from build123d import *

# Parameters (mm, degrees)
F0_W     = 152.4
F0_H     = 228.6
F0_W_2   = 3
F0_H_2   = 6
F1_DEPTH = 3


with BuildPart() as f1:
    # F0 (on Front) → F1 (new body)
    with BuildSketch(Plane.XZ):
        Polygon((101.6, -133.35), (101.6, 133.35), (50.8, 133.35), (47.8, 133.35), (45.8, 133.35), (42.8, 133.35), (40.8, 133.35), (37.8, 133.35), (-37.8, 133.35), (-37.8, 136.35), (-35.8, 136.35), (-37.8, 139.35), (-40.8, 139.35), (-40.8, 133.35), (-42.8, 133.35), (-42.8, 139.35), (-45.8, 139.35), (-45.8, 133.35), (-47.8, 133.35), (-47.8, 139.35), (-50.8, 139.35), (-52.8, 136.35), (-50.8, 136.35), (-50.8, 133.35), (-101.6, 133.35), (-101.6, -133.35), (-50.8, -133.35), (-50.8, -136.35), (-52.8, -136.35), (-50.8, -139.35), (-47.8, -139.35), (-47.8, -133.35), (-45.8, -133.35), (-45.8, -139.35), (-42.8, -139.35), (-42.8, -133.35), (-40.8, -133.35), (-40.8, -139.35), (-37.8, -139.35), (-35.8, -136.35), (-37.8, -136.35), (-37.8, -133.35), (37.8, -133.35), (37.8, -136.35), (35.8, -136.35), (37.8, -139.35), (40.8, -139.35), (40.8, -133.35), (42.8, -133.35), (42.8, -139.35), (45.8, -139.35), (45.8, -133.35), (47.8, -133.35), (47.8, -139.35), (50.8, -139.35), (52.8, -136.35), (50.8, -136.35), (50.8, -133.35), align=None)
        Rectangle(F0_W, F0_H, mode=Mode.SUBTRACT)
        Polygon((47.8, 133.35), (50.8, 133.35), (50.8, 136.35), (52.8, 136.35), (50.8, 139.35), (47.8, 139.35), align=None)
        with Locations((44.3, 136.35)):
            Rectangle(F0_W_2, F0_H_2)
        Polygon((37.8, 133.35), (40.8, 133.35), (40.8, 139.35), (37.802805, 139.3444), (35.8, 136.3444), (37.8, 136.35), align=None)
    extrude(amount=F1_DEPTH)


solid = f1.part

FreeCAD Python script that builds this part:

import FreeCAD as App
import Part
import Sketcher

V = App.Vector
Q = App.Units.Quantity

doc = App.newDocument("Part")
body = doc.addObject("PartDesign::Body", "Body")

sketch1 = body.newObject("Sketcher::SketchObject", "Sketch")
sketch1.AttachmentSupport = (doc.getObject("XZ_Plane"), [""])
sketch1.MapMode = "FlatFace"
sketch1.addGeometry([
    Part.LineSegment(V(101.6, -133.35, 0), V(101.6, 133.35, 0)),
    Part.LineSegment(V(101.6, 133.35, 0), V(50.8, 133.35, 0)),
    Part.LineSegment(V(50.8, 133.35, 0), V(50.8, 136.35, 0)),
    Part.LineSegment(V(50.8, 136.35, 0), V(52.8, 136.35, 0)),
    Part.LineSegment(V(52.8, 136.35, 0), V(50.8, 139.35, 0)),
    Part.LineSegment(V(50.8, 139.35, 0), V(47.8, 139.35, 0)),
    Part.LineSegment(V(47.8, 139.35, 0), V(47.8, 133.35, 0)),
    Part.LineSegment(V(47.8, 133.35, 0), V(45.8, 133.35, 0)),
    Part.LineSegment(V(45.8, 133.35, 0), V(45.8, 139.35, 0)),
    Part.LineSegment(V(45.8, 139.35, 0), V(42.8, 139.35, 0)),
    Part.LineSegment(V(42.8, 139.35, 0), V(42.8, 133.35, 0)),
    Part.LineSegment(V(42.8, 133.35, 0), V(40.8, 133.35, 0)),
    Part.LineSegment(V(40.8, 133.35, 0), V(40.8, 139.35, 0)),
    Part.LineSegment(V(40.8, 139.35, 0), V(37.802805, 139.3444, 0)),
    Part.LineSegment(V(37.802805, 139.3444, 0), V(35.8, 136.3444, 0)),
    Part.LineSegment(V(35.8, 136.3444, 0), V(37.8, 136.35, 0)),
    Part.LineSegment(V(37.8, 136.35, 0), V(37.8, 133.35, 0)),
    Part.LineSegment(V(37.8, 133.35, 0), V(-37.8, 133.35, 0)),
    Part.LineSegment(V(-37.8, 133.35, 0), V(-37.8, 136.35, 0)),
    Part.LineSegment(V(-37.8, 136.35, 0), V(-35.8, 136.35, 0)),
    Part.LineSegment(V(-35.8, 136.35, 0), V(-37.8, 139.35, 0)),
    Part.LineSegment(V(-37.8, 139.35, 0), V(-40.8, 139.35, 0)),
    Part.LineSegment(V(-40.8, 139.35, 0), V(-40.8, 133.35, 0)),
    Part.LineSegment(V(-40.8, 133.35, 0), V(-42.8, 133.35, 0)),
    Part.LineSegment(V(-42.8, 133.35, 0), V(-42.8, 139.35, 0)),
    Part.LineSegment(V(-42.8, 139.35, 0), V(-45.8, 139.35, 0)),
    Part.LineSegment(V(-45.8, 139.35, 0), V(-45.8, 133.35, 0)),
    Part.LineSegment(V(-45.8, 133.35, 0), V(-47.8, 133.35, 0)),
    Part.LineSegment(V(-47.8, 133.35, 0), V(-47.8, 139.35, 0)),
    Part.LineSegment(V(-47.8, 139.35, 0), V(-50.8, 139.35, 0)),
    Part.LineSegment(V(-50.8, 139.35, 0), V(-52.8, 136.35, 0)),
    Part.LineSegment(V(-52.8, 136.35, 0), V(-50.8, 136.35, 0)),
    Part.LineSegment(V(-50.8, 136.35, 0), V(-50.8, 133.35, 0)),
    Part.LineSegment(V(-50.8, 133.35, 0), V(-101.6, 133.35, 0)),
    Part.LineSegment(V(-101.6, 133.35, 0), V(-101.6, -133.35, 0)),
    Part.LineSegment(V(-101.6, -133.35, 0), V(-50.8, -133.35, 0)),
    Part.LineSegment(V(-50.8, -133.35, 0), V(-50.8, -136.35, 0)),
    Part.LineSegment(V(-50.8, -136.35, 0), V(-52.8, -136.35, 0)),
    Part.LineSegment(V(-52.8, -136.35, 0), V(-50.8, -139.35, 0)),
    Part.LineSegment(V(-50.8, -139.35, 0), V(-47.8, -139.35, 0)),
    Part.LineSegment(V(-47.8, -139.35, 0), V(-47.8, -133.35, 0)),
    Part.LineSegment(V(-47.8, -133.35, 0), V(-45.8, -133.35, 0)),
    Part.LineSegment(V(-45.8, -133.35, 0), V(-45.8, -139.35, 0)),
    Part.LineSegment(V(-45.8, -139.35, 0), V(-42.8, -139.35, 0)),
    Part.LineSegment(V(-42.8, -139.35, 0), V(-42.8, -133.35, 0)),
    Part.LineSegment(V(-42.8, -133.35, 0), V(-40.8, -133.35, 0)),
    Part.LineSegment(V(-40.8, -133.35, 0), V(-40.8, -139.35, 0)),
    Part.LineSegment(V(-40.8, -139.35, 0), V(-37.8, -139.35, 0)),
    Part.LineSegment(V(-37.8, -139.35, 0), V(-35.8, -136.35, 0)),
    Part.LineSegment(V(-35.8, -136.35, 0), V(-37.8, -136.35, 0)),
    Part.LineSegment(V(-37.8, -136.35, 0), V(-37.8, -133.35, 0)),
    Part.LineSegment(V(-37.8, -133.35, 0), V(37.8, -133.35, 0)),
    Part.LineSegment(V(37.8, -133.35, 0), V(37.8, -136.35, 0)),
    Part.LineSegment(V(37.8, -136.35, 0), V(35.8, -136.35, 0)),
    Part.LineSegment(V(35.8, -136.35, 0), V(37.8, -139.35, 0)),
    Part.LineSegment(V(37.8, -139.35, 0), V(40.8, -139.35, 0)),
    Part.LineSegment(V(40.8, -139.35, 0), V(40.8, -133.35, 0)),
    Part.LineSegment(V(40.8, -133.35, 0), V(42.8, -133.35, 0)),
    Part.LineSegment(V(42.8, -133.35, 0), V(42.8, -139.35, 0)),
    Part.LineSegment(V(42.8, -139.35, 0), V(45.8, -139.35, 0)),
    Part.LineSegment(V(45.8, -139.35, 0), V(45.8, -133.35, 0)),
    Part.LineSegment(V(45.8, -133.35, 0), V(47.8, -133.35, 0)),
    Part.LineSegment(V(47.8, -133.35, 0), V(47.8, -139.35, 0)),
    Part.LineSegment(V(47.8, -139.35, 0), V(50.8, -139.35, 0)),
    Part.LineSegment(V(50.8, -139.35, 0), V(52.8, -136.35, 0)),
    Part.LineSegment(V(52.8, -136.35, 0), V(50.8, -136.35, 0)),
    Part.LineSegment(V(50.8, -136.35, 0), V(50.8, -133.35, 0)),
    Part.LineSegment(V(50.8, -133.35, 0), V(101.6, -133.35, 0)),
    Part.LineSegment(V(76.2, -114.3, 0), V(-76.2, -114.3, 0)),
    Part.LineSegment(V(-76.2, -114.3, 0), V(-76.2, 114.3, 0)),
    Part.LineSegment(V(-76.2, 114.3, 0), V(76.2, 114.3, 0)),
    Part.LineSegment(V(76.2, 114.3, 0), V(76.2, -114.3, 0)),
], False)
sketch1.addConstraint([
    Sketcher.Constraint("Coincident", 0, 2, 1, 1),
    Sketcher.Constraint("Coincident", 1, 2, 2, 1),
    Sketcher.Constraint("Coincident", 2, 2, 3, 1),
    Sketcher.Constraint("Coincident", 3, 2, 4, 1),
    Sketcher.Constraint("Coincident", 4, 2, 5, 1),
    Sketcher.Constraint("Coincident", 5, 2, 6, 1),
    Sketcher.Constraint("Coincident", 6, 2, 7, 1),
    Sketcher.Constraint("Coincident", 7, 2, 8, 1),
    Sketcher.Constraint("Coincident", 8, 2, 9, 1),
    Sketcher.Constraint("Coincident", 9, 2, 10, 1),
    Sketcher.Constraint("Coincident", 10, 2, 11, 1),
    Sketcher.Constraint("Coincident", 11, 2, 12, 1),
    Sketcher.Constraint("Coincident", 12, 2, 13, 1),
    Sketcher.Constraint("Coincident", 13, 2, 14, 1),
    Sketcher.Constraint("Coincident", 14, 2, 15, 1),
    Sketcher.Constraint("Coincident", 15, 2, 16, 1),
    Sketcher.Constraint("Coincident", 16, 2, 17, 1),
    Sketcher.Constraint("Coincident", 17, 2, 18, 1),
    Sketcher.Constraint("Coincident", 18, 2, 19, 1),
    Sketcher.Constraint("Coincident", 19, 2, 20, 1),
    Sketcher.Constraint("Coincident", 20, 2, 21, 1),
    Sketcher.Constraint("Coincident", 21, 2, 22, 1),
    Sketcher.Constraint("Coincident", 22, 2, 23, 1),
    Sketcher.Constraint("Coincident", 23, 2, 24, 1),
    Sketcher.Constraint("Coincident", 24, 2, 25, 1),
    Sketcher.Constraint("Coincident", 25, 2, 26, 1),
    Sketcher.Constraint("Coincident", 26, 2, 27, 1),
    Sketcher.Constraint("Coincident", 27, 2, 28, 1),
    Sketcher.Constraint("Coincident", 28, 2, 29, 1),
    Sketcher.Constraint("Coincident", 29, 2, 30, 1),
    Sketcher.Constraint("Coincident", 30, 2, 31, 1),
    Sketcher.Constraint("Coincident", 31, 2, 32, 1),
    Sketcher.Constraint("Coincident", 32, 2, 33, 1),
    Sketcher.Constraint("Coincident", 33, 2, 34, 1),
    Sketcher.Constraint("Coincident", 34, 2, 35, 1),
    Sketcher.Constraint("Coincident", 35, 2, 36, 1),
    Sketcher.Constraint("Coincident", 36, 2, 37, 1),
    Sketcher.Constraint("Coincident", 37, 2, 38, 1),
    Sketcher.Constraint("Coincident", 38, 2, 39, 1),
    Sketcher.Constraint("Coincident", 39, 2, 40, 1),
    Sketcher.Constraint("Coincident", 40, 2, 41, 1),
    Sketcher.Constraint("Coincident", 41, 2, 42, 1),
    Sketcher.Constraint("Coincident", 42, 2, 43, 1),
    Sketcher.Constraint("Coincident", 43, 2, 44, 1),
    Sketcher.Constraint("Coincident", 44, 2, 45, 1),
    Sketcher.Constraint("Coincident", 45, 2, 46, 1),
    Sketcher.Constraint("Coincident", 46, 2, 47, 1),
    Sketcher.Constraint("Coincident", 47, 2, 48, 1),
    Sketcher.Constraint("Coincident", 48, 2, 49, 1),
    Sketcher.Constraint("Coincident", 49, 2, 50, 1),
    Sketcher.Constraint("Coincident", 50, 2, 51, 1),
    Sketcher.Constraint("Coincident", 51, 2, 52, 1),
    Sketcher.Constraint("Coincident", 52, 2, 53, 1),
    Sketcher.Constraint("Coincident", 53, 2, 54, 1),
    Sketcher.Constraint("Coincident", 54, 2, 55, 1),
    Sketcher.Constraint("Coincident", 55, 2, 56, 1),
    Sketcher.Constraint("Coincident", 56, 2, 57, 1),
    Sketcher.Constraint("Coincident", 57, 2, 58, 1),
    Sketcher.Constraint("Coincident", 58, 2, 59, 1),
    Sketcher.Constraint("Coincident", 59, 2, 60, 1),
    Sketcher.Constraint("Coincident", 60, 2, 61, 1),
    Sketcher.Constraint("Coincident", 61, 2, 62, 1),
    Sketcher.Constraint("Coincident", 62, 2, 63, 1),
    Sketcher.Constraint("Coincident", 63, 2, 64, 1),
    Sketcher.Constraint("Coincident", 64, 2, 65, 1),
    Sketcher.Constraint("Coincident", 65, 2, 66, 1),
    Sketcher.Constraint("Coincident", 66, 2, 67, 1),
    Sketcher.Constraint("Coincident", 67, 2, 0, 1),
    Sketcher.Constraint("Coincident", 68, 2, 69, 1),
    Sketcher.Constraint("Coincident", 69, 2, 70, 1),
    Sketcher.Constraint("Coincident", 70, 2, 71, 1),
    Sketcher.Constraint("Coincident", 71, 2, 68, 1),
    Sketcher.Constraint("Vertical", 0),
    Sketcher.Constraint("Horizontal", 1),
    Sketcher.Constraint("Vertical", 2),
    Sketcher.Constraint("Horizontal", 3),
    Sketcher.Constraint("Horizontal", 5),
    Sketcher.Constraint("Vertical", 6),
    Sketcher.Constraint("Horizontal", 7),
    Sketcher.Constraint("Vertical", 8),
    Sketcher.Constraint("Horizontal", 9),
    Sketcher.Constraint("Vertical", 10),
    Sketcher.Constraint("Horizontal", 11),
    Sketcher.Constraint("Vertical", 12),
    Sketcher.Constraint("Vertical", 16),
    Sketcher.Constraint("Horizontal", 17),
    Sketcher.Constraint("Vertical", 18),
    Sketcher.Constraint("Horizontal", 19),
    Sketcher.Constraint("Horizontal", 21),
    Sketcher.Constraint("Vertical", 22),
    Sketcher.Constraint("Horizontal", 23),
    Sketcher.Constraint("Vertical", 24),
    Sketcher.Constraint("Horizontal", 25),
    Sketcher.Constraint("Vertical", 26),
    Sketcher.Constraint("Horizontal", 27),
    Sketcher.Constraint("Vertical", 28),
    Sketcher.Constraint("Horizontal", 29),
    Sketcher.Constraint("Horizontal", 31),
    Sketcher.Constraint("Vertical", 32),
    Sketcher.Constraint("Horizontal", 33),
    Sketcher.Constraint("Vertical", 34),
    Sketcher.Constraint("Horizontal", 35),
    Sketcher.Constraint("Vertical", 36),
    Sketcher.Constraint("Horizontal", 37),
    Sketcher.Constraint("Horizontal", 39),
    Sketcher.Constraint("Vertical", 40),
    Sketcher.Constraint("Horizontal", 41),
    Sketcher.Constraint("Vertical", 42),
    Sketcher.Constraint("Horizontal", 43),
    Sketcher.Constraint("Vertical", 44),
    Sketcher.Constraint("Horizontal", 45),
    Sketcher.Constraint("Vertical", 46),
    Sketcher.Constraint("Horizontal", 47),
    Sketcher.Constraint("Horizontal", 49),
    Sketcher.Constraint("Vertical", 50),
    Sketcher.Constraint("Horizontal", 51),
    Sketcher.Constraint("Vertical", 52),
    Sketcher.Constraint("Horizontal", 53),
    Sketcher.Constraint("Horizontal", 55),
    Sketcher.Constraint("Vertical", 56),
    Sketcher.Constraint("Horizontal", 57),
    Sketcher.Constraint("Vertical", 58),
    Sketcher.Constraint("Horizontal", 59),
    Sketcher.Constraint("Vertical", 60),
    Sketcher.Constraint("Horizontal", 61),
    Sketcher.Constraint("Vertical", 62),
    Sketcher.Constraint("Horizontal", 63),
    Sketcher.Constraint("Horizontal", 65),
    Sketcher.Constraint("Vertical", 66),
    Sketcher.Constraint("Horizontal", 67),
    Sketcher.Constraint("Horizontal", 68),
    Sketcher.Constraint("Vertical", 69),
    Sketcher.Constraint("Horizontal", 70),
    Sketcher.Constraint("Vertical", 71),
    Sketcher.Constraint("Symmetric", 0, 2, 34, 2, -1, 1),
    Sketcher.Constraint("Symmetric", 2, 2, 36, 2, -1, 1),
    Sketcher.Constraint("Symmetric", 4, 2, 38, 2, -1, 1),
    Sketcher.Constraint("Symmetric", 6, 2, 40, 2, -1, 1),
    Sketcher.Constraint("Symmetric", 8, 2, 42, 2, -1, 1),
    Sketcher.Constraint("Symmetric", 10, 2, 44, 2, -1, 1),
    Sketcher.Constraint("Symmetric", 12, 2, 46, 2, -1, 1),
    Sketcher.Constraint("Symmetric", 15, 2, 49, 2, -1, 1),
    Sketcher.Constraint("Symmetric", 17, 2, 51, 2, -1, 1),
    Sketcher.Constraint("Symmetric", 19, 2, 53, 2, -1, 1),
    Sketcher.Constraint("Symmetric", 20, 2, 54, 2, -1, 1),
    Sketcher.Constraint("Symmetric", 22, 2, 56, 2, -1, 1),
    Sketcher.Constraint("Symmetric", 24, 2, 58, 2, -1, 1),
    Sketcher.Constraint("Symmetric", 26, 2, 60, 2, -1, 1),
    Sketcher.Constraint("Symmetric", 28, 2, 62, 2, -1, 1),
    Sketcher.Constraint("Symmetric", 30, 2, 64, 2, -1, 1),
    Sketcher.Constraint("Symmetric", 32, 2, 66, 2, -1, 1),
    Sketcher.Constraint("Symmetric", 68, 2, 70, 2, -1, 1),
    Sketcher.Constraint("Symmetric", 15, 2, 18, 2, -2),
    Sketcher.Constraint("Symmetric", 12, 2, 21, 2, -2),
    Sketcher.Constraint("Symmetric", 10, 2, 23, 2, -2),
    Sketcher.Constraint("Symmetric", 8, 2, 25, 2, -2),
    Sketcher.Constraint("Symmetric", 6, 2, 27, 2, -2),
    Sketcher.Constraint("Symmetric", 4, 2, 29, 2, -2),
    Sketcher.Constraint("Symmetric", 3, 2, 30, 2, -2),
    Sketcher.Constraint("Symmetric", 1, 2, 32, 2, -2),
    Sketcher.Constraint("Parallel", 4, 20),
    Sketcher.Constraint("Parallel", 20, 38),
    Sketcher.Constraint("Parallel", 30, 48),
    Sketcher.Constraint("Parallel", 48, 64),
    Sketcher.Constraint("Horizontal", 1, 2, 6, 2),
    Sketcher.Constraint("Horizontal", 5, 2, 8, 2),
    Sketcher.Constraint("Horizontal", 7, 2, 10, 2),
    Sketcher.Constraint("Horizontal", 9, 2, 12, 2),
    Sketcher.Constraint("Horizontal", 3, 2, 15, 2),
    Sketcher.Constraint("Horizontal", 11, 2, 16, 2),
    Sketcher.Constraint("Vertical", 2, 2, 4, 2),
    Sketcher.Constraint("Vertical", 18, 2, 20, 2),
    Sketcher.Constraint("Vertical", 20, 2, 47, 2),
    Sketcher.Constraint("Vertical", 14, 2, 53, 2),
    Sketcher.Constraint("Equal", 3, 7),
    Sketcher.Constraint("Equal", 5, 9),
    Sketcher.Constraint("Equal", 7, 11),
    Sketcher.Constraint("Equal", 9, 21),
    Sketcher.Constraint("Equal", 63, 2),
    Sketcher.Constraint("DistanceX", 1, 2, 1, 1, Q("2 in")),
    Sketcher.Constraint("DistanceX", 68, 2, 68, 1, Q("6 in")),
    Sketcher.Constraint("DistanceY", 69, 1, 69, 2, Q("9 in")),
    Sketcher.Constraint("DistanceY", 0, 1, 0, 2, Q("10.5 in")),
    Sketcher.Constraint("DistanceX", -1, 1, 0, 2, Q("4 in")),
    Sketcher.Constraint("Distance", 13, Q("0.118 in")),
    Sketcher.Constraint("DistanceY", -1, 1, 13, 2, Q("5.486 in")),
    Sketcher.Constraint("DistanceX", 3, 1, 3, 2, Q("2 mm")),
    Sketcher.Constraint("DistanceX", 5, 2, 5, 1, Q("3 mm")),
    Sketcher.Constraint("DistanceY", 6, 2, 6, 1, Q("6 mm")),
    Sketcher.Constraint("DistanceY", -1, 1, 14, 2, Q("136.3444 mm")),
])
pad1 = body.newObject("PartDesign::Pad", "Pad")
pad1.Profile = sketch1
pad1.Length = 3

doc.recompute()
